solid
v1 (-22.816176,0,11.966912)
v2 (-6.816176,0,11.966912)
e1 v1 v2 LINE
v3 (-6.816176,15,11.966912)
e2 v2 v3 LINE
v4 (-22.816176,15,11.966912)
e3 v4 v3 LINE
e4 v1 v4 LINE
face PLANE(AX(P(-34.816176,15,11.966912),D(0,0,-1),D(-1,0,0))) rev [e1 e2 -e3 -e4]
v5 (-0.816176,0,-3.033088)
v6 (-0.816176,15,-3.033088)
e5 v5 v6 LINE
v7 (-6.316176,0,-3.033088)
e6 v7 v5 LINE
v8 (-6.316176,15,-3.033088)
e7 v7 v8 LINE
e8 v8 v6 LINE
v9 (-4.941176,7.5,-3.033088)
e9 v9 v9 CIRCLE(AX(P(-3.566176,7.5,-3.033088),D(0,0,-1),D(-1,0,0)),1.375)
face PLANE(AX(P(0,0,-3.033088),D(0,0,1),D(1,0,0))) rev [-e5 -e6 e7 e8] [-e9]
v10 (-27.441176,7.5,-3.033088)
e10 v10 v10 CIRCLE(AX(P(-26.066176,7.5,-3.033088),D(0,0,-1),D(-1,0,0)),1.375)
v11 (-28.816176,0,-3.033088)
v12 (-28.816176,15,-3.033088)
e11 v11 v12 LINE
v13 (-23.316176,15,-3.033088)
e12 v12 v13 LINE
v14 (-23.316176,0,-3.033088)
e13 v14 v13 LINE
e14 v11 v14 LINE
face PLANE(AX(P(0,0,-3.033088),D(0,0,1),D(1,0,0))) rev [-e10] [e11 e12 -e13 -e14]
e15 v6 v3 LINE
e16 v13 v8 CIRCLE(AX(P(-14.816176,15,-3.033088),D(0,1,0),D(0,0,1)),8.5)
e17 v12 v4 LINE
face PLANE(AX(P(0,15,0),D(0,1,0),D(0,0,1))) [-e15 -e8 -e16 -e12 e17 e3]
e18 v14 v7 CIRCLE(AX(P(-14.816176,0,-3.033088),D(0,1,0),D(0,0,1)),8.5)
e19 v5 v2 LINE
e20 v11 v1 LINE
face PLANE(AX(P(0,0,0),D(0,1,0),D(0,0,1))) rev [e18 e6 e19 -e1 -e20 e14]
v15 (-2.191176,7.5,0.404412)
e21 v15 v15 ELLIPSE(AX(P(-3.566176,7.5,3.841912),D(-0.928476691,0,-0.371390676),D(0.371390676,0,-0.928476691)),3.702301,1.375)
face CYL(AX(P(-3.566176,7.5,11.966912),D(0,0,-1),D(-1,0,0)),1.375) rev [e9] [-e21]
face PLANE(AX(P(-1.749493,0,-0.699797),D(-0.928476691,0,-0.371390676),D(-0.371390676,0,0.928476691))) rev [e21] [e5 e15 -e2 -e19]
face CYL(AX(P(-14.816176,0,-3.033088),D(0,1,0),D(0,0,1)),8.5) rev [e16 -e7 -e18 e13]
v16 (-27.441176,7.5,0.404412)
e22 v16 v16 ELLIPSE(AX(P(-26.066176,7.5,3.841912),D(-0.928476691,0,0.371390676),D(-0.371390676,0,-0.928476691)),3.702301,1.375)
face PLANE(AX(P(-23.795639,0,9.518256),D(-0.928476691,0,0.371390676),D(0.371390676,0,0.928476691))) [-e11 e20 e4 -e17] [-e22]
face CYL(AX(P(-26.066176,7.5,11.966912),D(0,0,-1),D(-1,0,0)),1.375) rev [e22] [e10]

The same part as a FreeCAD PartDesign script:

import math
import FreeCAD as App
import Part
import Sketcher
from FreeCAD import Vector


def add_polygon(sketch, points):
    """Adds a closed chain of lines whose ends are joined by coincident constraints."""
    first, n = sketch.GeometryCount, len(points)
    for a, b in zip(points, points[1:] + points[:1]):
        sketch.addGeometry(Part.LineSegment(App.Vector(*a, 0), App.Vector(*b, 0)), False)
    for i in range(n):
        sketch.addConstraint(Sketcher.Constraint("Coincident", first + i, 2, first + (i + 1) % n, 1))

doc = App.newDocument("Part")
body = doc.addObject("PartDesign::Body", "Body")

# Sketch on XZ plane
sketch1 = doc.addObject("Sketcher::SketchObject", "Sketch")
body.addObject(sketch1)
sketch1.AttachmentSupport = (doc.XZ_Plane, [""])
sketch1.MapMode = "FlatFace"
add_polygon(sketch1, [(-35, -18), (-35, 12), (5, 12), (5, -18)])  # lines 0-3
sketch1.addConstraint(Sketcher.Constraint("Vertical", 0))
sketch1.addConstraint(Sketcher.Constraint("Horizontal", 1))
sketch1.addConstraint(Sketcher.Constraint("Vertical", 2))
sketch1.addConstraint(Sketcher.Constraint("Horizontal", 3))
sketch1.addConstraint(Sketcher.Constraint("DistanceX", 1, 1, 1, 2, 40.0))
sketch1.addConstraint(Sketcher.Constraint("DistanceY", 0, 1, 0, 2, 30.0))
sketch1.addConstraint(Sketcher.Constraint("DistanceY", -1, 1, 0, 2, 11.966912))
sketch1.addConstraint(Sketcher.Constraint("DistanceX", 0, 2, -1, 1, 34.816176))
pad1 = doc.addObject("PartDesign::Pad", "Pad")
body.addObject(pad1)
pad1.Profile = sketch1
pad1.Length = 15
pad1.Reversed = True

# Sketch on XZ plane
sketch2 = doc.addObject("Sketcher::SketchObject", "Sketch001")
body.addObject(sketch2)
sketch2.AttachmentSupport = (doc.XZ_Plane, [""])
sketch2.MapMode = "FlatFace"
sketch2.AttachmentOffset = App.Placement(Vector(0, 0, -15), App.Rotation())
sketch2.addGeometry(Part.LineSegment(Vector(-35, 12, 0), Vector(-23, 12, 0)), False)
sketch2.addGeometry(Part.LineSegment(Vector(-23, 12, 0), Vector(-29, -3, 0)), False)
sketch2.addGeometry(Part.LineSegment(Vector(-29, -3, 0), Vector(-23, -3, 0)), False)
sketch2.addGeometry(Part.ArcOfCircle(Part.Circle(Vector(-15, -3, 0), Vector(0, 0, 1), 8), math.radians(0), math.radians(180)), False)
sketch2.addGeometry(Part.LineSegment(Vector(-6, -3, 0), Vector(-1, -3, 0)), False)
sketch2.addGeometry(Part.LineSegment(Vector(-1, -3, 0), Vector(-7, 12, 0)), False)
sketch2.addGeometry(Part.LineSegment(Vector(-7, 12, 0), Vector(5, 12, 0)), False)
sketch2.addGeometry(Part.LineSegment(Vector(5, 12, 0), Vector(5, -18, 0)), False)
sketch2.addGeometry(Part.LineSegment(Vector(5, -18, 0), Vector(-35, -18, 0)), False)
sketch2.addGeometry(Part.LineSegment(Vector(-35, -18, 0), Vector(-35, 12, 0)), False)
sketch2.addConstraint(Sketcher.Constraint("Coincident", 0, 2, 1, 1))
sketch2.addConstraint(Sketcher.Constraint("Coincident", 1, 2, 2, 1))
sketch2.addConstraint(Sketcher.Constraint("Coincident", 2, 2, 3, 2))
sketch2.addConstraint(Sketcher.Constraint("Coincident", 3, 1, 4, 1))
sketch2.addConstraint(Sketcher.Constraint("Coincident", 4, 2, 5, 1))
sketch2.addConstraint(Sketcher.Constraint("Coincident", 5, 2, 6, 1))
sketch2.addConstraint(Sketcher.Constraint("Coincident", 6, 2, 7, 1))
sketch2.addConstraint(Sketcher.Constraint("Coincident", 7, 2, 8, 1))
sketch2.addConstraint(Sketcher.Constraint("Coincident", 8, 2, 9, 1))
sketch2.addConstraint(Sketcher.Constraint("Coincident", 9, 2, 0, 1))
sketch2.addConstraint(Sketcher.Constraint("Horizontal", 0))
sketch2.addConstraint(Sketcher.Constraint("Horizontal", 2))
sketch2.addConstraint(Sketcher.Constraint("Horizontal", 4))
sketch2.addConstraint(Sketcher.Constraint("Horizontal", 6))
sketch2.addConstraint(Sketcher.Constraint("Vertical", 7))
sketch2.addConstraint(Sketcher.Constraint("Horizontal", 8))
sketch2.addConstraint(Sketcher.Constraint("Vertical", 9))
sketch2.addConstraint(Sketcher.Constraint("Horizontal", 3, 3, 1, 2))
sketch2.addConstraint(Sketcher.Constraint("Horizontal", 2, 2, 3, 1))
sketch2.addConstraint(Sketcher.Constraint("Horizontal", 0, 2, 5, 2))
sketch2.addConstraint(Sketcher.Constraint("Equal", 2, 4))
sketch2.addConstraint(Sketcher.Constraint("Equal", 0, 6))
sketch2.addConstraint(Sketcher.Constraint("Equal", 1, 5))
sketch2.addConstraint(Sketcher.Constraint("Radius", 3, 8.5))
sketch2.addConstraint(Sketcher.Constraint("DistanceX", 0, 1, 0, 2, 12.0))
sketch2.addConstraint(Sketcher.Constraint("DistanceX", 8, 2, 8, 1, 40.0))
sketch2.addConstraint(Sketcher.Constraint("DistanceY", 7, 2, 7, 1, 30.0))
sketch2.addConstraint(Sketcher.Constraint("DistanceX", 2, 1, 2, 2, 5.5))
sketch2.addConstraint(Sketcher.Constraint("DistanceY", 3, 3, 0, 2, 15.0))
sketch2.addConstraint(Sketcher.Constraint("DistanceY", 3, 3, -1, 1, 3.033088))
sketch2.addConstraint(Sketcher.Constraint("DistanceX", 3, 3, -1, 1, 14.816176))
pocket1 = doc.addObject("PartDesign::Pocket", "Pocket")
body.addObject(pocket1)
pocket1.Profile = sketch2
pocket1.Length = 15
pocket1.Reversed = True

# Sketch on XY plane
sketch3 = doc.addObject("Sketcher::SketchObject", "Sketch002")
body.addObject(sketch3)
sketch3.AttachmentSupport = (doc.XY_Plane, [""])
sketch3.MapMode = "FlatFace"
sketch3.AttachmentOffset = App.Placement(Vector(0, 0, -3.033088), App.Rotation())
sketch3.addGeometry(Part.Circle(Vector(-3.6, 7.5, 0), Vector(0, 0, 1), 1.4), False)
sketch3.addGeometry(Part.Circle(Vector(-26.1, 7.5, 0), Vector(0, 0, 1), 1.4), False)
sketch3.addConstraint(Sketcher.Constraint("Equal", 0, 1))
sketch3.addConstraint(Sketcher.Constraint("Horizontal", 0, 3, 1, 3))
sketch3.addConstraint(Sketcher.Constraint("Diameter", 0, 2.75))
sketch3.addConstraint(Sketcher.Constraint("DistanceY", -1, 1, 0, 3, 7.5))
sketch3.addConstraint(Sketcher.Constraint("DistanceX", 1, 3, 0, 3, 22.5))
sketch3.addConstraint(Sketcher.Constraint("DistanceX", 0, 3, -1, 1, 3.566176))
pocket2 = doc.addObject("PartDesign::Pocket", "Pocket001")
body.addObject(pocket2)
pocket2.Profile = sketch3
pocket2.Length = 15
pocket2.Reversed = True

doc.recompute()
